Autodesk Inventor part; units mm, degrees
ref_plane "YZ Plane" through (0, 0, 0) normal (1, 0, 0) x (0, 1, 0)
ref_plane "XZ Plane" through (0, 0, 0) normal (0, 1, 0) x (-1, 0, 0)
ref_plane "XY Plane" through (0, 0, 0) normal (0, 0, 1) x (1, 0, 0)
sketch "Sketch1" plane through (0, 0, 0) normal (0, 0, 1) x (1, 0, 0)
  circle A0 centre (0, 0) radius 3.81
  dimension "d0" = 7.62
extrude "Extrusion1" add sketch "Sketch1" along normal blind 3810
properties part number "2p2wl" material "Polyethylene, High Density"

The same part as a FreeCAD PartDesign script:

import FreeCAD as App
import Part
import Sketcher
Q = App.Units.Quantity

doc = App.newDocument("Part")
params = doc.addObject("Spreadsheet::Sheet", "Params")
for row, (alias, value) in enumerate([
    ("sketch1_diameter", "0.3 in"),
    ("pad1_length", "150 in"),
], start=1):
    params.set(f"A{row}", alias)
    params.set(f"B{row}", "=" + value)
    params.setAlias(f"B{row}", alias)

body = doc.addObject("PartDesign::Body", "Body")

sketch1 = body.newObject("Sketcher::SketchObject", "Sketch")
sketch1.AttachmentSupport = (doc.getObject("XY_Plane"), [""])
sketch1.MapMode = "FlatFace"
sketch1.addGeometry(Part.Circle(App.Vector(0, 0, 0), App.Vector(0, 0, 1), 3.81), False)
sketch1.addConstraint([
    Sketcher.Constraint("Coincident", 0, 3, -1, 1),
    Sketcher.Constraint("Diameter", 0, Q("0.3 in")),
])
sketch1.setExpression("Constraints[1]", "Params.sketch1_diameter")
pad1 = body.newObject("PartDesign::Pad", "Pad")
pad1.Profile = sketch1
pad1.setExpression("Length", "Params.pad1_length")

doc.recompute()
